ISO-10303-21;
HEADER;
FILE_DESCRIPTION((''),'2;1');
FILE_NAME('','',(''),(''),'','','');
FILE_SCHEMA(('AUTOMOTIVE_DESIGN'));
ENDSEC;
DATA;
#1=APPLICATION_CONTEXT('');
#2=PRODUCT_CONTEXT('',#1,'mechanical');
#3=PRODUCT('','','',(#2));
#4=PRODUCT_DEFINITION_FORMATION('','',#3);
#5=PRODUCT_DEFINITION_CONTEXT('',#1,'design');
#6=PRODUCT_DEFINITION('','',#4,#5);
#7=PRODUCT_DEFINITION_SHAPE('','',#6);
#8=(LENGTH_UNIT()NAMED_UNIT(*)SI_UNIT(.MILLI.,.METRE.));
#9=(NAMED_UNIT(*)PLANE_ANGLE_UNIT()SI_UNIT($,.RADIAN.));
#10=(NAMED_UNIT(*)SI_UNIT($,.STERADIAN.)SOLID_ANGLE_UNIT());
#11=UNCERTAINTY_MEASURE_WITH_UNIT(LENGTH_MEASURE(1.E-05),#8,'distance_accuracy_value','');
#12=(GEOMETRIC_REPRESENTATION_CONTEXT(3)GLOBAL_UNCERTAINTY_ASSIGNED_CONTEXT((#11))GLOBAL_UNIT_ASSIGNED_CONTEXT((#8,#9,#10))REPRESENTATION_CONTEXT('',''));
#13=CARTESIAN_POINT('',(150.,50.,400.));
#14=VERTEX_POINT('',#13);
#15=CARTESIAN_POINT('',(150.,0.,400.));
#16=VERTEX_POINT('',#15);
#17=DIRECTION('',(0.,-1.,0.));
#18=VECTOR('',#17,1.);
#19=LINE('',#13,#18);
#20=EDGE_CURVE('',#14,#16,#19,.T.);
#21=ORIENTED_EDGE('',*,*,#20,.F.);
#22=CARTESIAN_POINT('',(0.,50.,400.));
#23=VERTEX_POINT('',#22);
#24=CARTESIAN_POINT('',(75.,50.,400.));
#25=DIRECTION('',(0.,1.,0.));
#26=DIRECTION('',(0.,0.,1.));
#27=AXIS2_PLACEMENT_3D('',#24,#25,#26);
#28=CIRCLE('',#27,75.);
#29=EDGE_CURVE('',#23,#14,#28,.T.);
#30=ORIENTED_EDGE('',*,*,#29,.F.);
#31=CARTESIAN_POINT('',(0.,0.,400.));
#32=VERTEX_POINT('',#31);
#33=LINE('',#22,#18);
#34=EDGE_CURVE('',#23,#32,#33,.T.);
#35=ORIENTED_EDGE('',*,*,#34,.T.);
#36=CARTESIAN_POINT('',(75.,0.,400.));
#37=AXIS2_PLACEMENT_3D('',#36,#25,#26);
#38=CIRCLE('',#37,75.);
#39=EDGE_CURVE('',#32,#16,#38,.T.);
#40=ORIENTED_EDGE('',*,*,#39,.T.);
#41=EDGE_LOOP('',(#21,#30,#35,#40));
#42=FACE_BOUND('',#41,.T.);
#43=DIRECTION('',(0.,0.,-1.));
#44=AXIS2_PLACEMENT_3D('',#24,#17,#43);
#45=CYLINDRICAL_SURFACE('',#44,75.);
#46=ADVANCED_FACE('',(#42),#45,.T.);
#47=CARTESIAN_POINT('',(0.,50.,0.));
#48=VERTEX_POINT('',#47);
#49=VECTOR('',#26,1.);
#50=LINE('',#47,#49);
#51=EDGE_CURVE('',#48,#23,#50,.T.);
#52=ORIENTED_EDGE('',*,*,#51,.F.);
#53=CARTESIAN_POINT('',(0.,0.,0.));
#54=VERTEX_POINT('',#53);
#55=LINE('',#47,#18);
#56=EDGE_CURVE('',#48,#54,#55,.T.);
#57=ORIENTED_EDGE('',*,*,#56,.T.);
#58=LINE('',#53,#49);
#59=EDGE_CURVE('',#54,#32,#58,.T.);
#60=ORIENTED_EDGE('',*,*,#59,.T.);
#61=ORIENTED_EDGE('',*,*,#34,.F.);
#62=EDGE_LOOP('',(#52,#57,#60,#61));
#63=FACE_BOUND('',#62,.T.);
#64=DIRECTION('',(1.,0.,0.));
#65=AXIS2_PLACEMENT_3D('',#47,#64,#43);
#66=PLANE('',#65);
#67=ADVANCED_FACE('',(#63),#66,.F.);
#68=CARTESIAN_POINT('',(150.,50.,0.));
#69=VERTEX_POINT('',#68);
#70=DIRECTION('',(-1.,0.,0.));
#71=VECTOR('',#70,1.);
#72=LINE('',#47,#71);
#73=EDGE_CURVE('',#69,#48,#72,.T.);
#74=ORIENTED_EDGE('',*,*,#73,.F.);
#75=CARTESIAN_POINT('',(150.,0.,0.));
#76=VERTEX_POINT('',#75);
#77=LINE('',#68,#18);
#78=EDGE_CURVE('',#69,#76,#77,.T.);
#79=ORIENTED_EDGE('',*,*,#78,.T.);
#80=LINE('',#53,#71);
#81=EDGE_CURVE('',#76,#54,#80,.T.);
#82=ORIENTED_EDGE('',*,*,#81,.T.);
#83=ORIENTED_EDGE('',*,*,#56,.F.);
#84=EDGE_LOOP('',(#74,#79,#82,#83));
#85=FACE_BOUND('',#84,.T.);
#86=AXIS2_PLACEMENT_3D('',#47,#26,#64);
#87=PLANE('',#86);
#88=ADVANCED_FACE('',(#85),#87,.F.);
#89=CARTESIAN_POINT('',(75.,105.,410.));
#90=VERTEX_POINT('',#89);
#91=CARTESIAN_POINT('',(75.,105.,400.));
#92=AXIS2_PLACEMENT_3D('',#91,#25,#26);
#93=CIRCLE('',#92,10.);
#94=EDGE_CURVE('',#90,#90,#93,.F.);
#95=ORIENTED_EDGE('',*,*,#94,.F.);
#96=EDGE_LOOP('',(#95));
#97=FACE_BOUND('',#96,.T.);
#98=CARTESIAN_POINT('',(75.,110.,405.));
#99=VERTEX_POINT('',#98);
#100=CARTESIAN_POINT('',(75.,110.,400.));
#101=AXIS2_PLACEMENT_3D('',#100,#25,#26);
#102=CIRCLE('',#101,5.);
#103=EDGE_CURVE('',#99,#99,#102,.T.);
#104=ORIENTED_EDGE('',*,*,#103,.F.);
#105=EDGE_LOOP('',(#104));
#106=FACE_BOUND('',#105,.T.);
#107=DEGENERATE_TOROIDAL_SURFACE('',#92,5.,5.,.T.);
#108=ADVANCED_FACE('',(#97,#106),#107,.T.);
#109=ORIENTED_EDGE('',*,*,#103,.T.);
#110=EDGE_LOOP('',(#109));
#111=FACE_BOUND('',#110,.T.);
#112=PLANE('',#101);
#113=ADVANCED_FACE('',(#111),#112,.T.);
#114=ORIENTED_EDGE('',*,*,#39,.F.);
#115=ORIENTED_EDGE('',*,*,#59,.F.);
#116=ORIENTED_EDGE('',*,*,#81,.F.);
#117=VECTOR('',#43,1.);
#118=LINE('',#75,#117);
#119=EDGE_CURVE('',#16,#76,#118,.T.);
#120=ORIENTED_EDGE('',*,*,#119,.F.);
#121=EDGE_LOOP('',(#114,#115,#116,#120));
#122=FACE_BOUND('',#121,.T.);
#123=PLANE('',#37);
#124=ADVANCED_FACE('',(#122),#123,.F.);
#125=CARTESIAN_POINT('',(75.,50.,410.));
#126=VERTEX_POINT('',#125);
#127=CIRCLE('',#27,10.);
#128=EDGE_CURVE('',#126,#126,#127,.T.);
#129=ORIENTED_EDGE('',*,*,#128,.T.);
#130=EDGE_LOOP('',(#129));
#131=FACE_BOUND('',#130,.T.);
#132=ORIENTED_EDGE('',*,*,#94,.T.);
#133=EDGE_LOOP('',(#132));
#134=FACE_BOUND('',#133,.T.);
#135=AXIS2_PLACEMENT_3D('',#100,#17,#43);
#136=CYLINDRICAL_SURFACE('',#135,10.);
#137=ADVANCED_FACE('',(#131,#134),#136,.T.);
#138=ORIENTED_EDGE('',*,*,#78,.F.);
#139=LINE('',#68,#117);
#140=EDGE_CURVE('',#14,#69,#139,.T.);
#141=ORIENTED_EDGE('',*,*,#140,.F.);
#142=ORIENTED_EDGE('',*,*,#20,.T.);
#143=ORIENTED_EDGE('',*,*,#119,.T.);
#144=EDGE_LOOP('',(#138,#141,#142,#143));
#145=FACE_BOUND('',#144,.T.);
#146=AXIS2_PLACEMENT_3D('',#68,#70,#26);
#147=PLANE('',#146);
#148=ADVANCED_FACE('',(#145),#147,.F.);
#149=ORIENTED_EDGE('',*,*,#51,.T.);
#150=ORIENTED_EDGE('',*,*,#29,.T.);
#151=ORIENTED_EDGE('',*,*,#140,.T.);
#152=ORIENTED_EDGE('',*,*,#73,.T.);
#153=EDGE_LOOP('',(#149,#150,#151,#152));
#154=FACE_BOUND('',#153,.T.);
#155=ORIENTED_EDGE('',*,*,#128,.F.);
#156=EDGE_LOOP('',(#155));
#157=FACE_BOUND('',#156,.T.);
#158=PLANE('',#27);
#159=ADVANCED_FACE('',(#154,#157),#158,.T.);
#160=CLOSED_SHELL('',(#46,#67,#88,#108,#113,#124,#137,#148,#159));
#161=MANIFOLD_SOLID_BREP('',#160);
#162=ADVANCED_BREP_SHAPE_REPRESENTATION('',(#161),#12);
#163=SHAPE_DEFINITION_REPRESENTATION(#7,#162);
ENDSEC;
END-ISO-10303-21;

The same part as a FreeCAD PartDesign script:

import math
import FreeCAD as App
import Part
import Sketcher

V = App.Vector
Q = App.Units.Quantity


def edges_at(feature, points):
    """Names of the edges that pass closest to the given points."""
    edges = feature.Shape.Edges
    near = lambda p: min(range(len(edges)), key=lambda i: edges[i].distToShape(Part.Vertex(*p))[0])
    return sorted({f"Edge{near(p) + 1}" for p in points})

doc = App.newDocument("Part")
body = doc.addObject("PartDesign::Body", "Body")

# Sketch on XZ plane
sketch1 = body.newObject("Sketcher::SketchObject", "Sketch")
sketch1.AttachmentSupport = (doc.getObject("XZ_Plane"), [""])
sketch1.MapMode = "FlatFace"
sketch1.addGeometry([
    Part.LineSegment(V(150, 0, 0), V(0, 0, 0)),
    Part.LineSegment(V(0, 0, 0), V(0, 400, 0)),
    Part.ArcOfCircle(Part.Circle(V(75, 400, 0), V(0, 0, 1), 75), math.radians(0), math.radians(180)),
    Part.LineSegment(V(150, 400, 0), V(150, 0, 0)),
], False)
sketch1.addConstraint([
    Sketcher.Constraint("Coincident", 0, 2, 1, 1),
    Sketcher.Constraint("Tangent", 1, 2, 2, 2),
    Sketcher.Constraint("Tangent", 2, 1, 3, 1),
    Sketcher.Constraint("Coincident", 3, 2, 0, 1),
    Sketcher.Constraint("Horizontal", 0),
    Sketcher.Constraint("Vertical", 1),
    Sketcher.Constraint("Vertical", 3),
    Sketcher.Constraint("Coincident", 0, 2, -1, 1),
    Sketcher.Constraint("Radius", 2, Q("75 mm")),
    Sketcher.Constraint("DistanceY", 1, 1, 1, 2, Q("400 mm")),
])
pad1 = body.newObject("PartDesign::Pad", "Pad")
pad1.Profile = sketch1
pad1.Length = 50
pad1.Reversed = True

# Sketch on XZ plane
sketch2 = body.newObject("Sketcher::SketchObject", "Sketch001")
sketch2.AttachmentSupport = (doc.getObject("XZ_Plane"), [""])
sketch2.MapMode = "FlatFace"
sketch2.AttachmentOffset = App.Placement(V(0, 0, -50), App.Rotation())
sketch2.addGeometry(Part.Circle(V(75, 400, 0), V(0, 0, 1), 10), False)
sketch2.addConstraint([
    Sketcher.Constraint("Diameter", 0, Q("20 mm")),
    Sketcher.Constraint("DistanceX", -1, 1, 0, 3, Q("75 mm")),
    Sketcher.Constraint("DistanceY", -1, 1, 0, 3, Q("400 mm")),
])
pad2 = body.newObject("PartDesign::Pad", "Pad001")
pad2.Profile = sketch2
pad2.Length = 60
pad2.Reversed = True
doc.recompute()

fillet = body.newObject("PartDesign::Fillet", "Fillet")
fillet.Base = (pad2, edges_at(pad2, [(65, 110, 400)]))
fillet.Radius = 5

doc.recompute()
